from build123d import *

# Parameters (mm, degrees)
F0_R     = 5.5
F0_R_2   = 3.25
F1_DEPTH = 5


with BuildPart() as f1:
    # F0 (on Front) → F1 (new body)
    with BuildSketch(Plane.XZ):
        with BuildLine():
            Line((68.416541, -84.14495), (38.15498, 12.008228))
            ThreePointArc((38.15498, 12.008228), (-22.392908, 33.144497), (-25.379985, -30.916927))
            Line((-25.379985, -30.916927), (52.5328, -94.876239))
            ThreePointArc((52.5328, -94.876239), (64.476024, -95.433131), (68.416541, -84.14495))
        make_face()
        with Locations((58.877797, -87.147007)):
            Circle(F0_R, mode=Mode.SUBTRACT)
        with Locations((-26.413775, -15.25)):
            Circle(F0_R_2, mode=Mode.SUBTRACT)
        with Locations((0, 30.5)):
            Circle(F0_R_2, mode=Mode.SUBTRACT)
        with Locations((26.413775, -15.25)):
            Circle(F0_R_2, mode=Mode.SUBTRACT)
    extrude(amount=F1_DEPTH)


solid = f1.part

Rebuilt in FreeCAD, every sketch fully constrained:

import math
import FreeCAD as App
import Part
import Sketcher

V = App.Vector
Q = App.Units.Quantity

doc = App.newDocument("Part")
body = doc.addObject("PartDesign::Body", "Body")

sketch1 = doc.addObject("Sketcher::SketchObject", "Sketch")
body.addObject(sketch1)
sketch1.AttachmentSupport = (doc.XZ_Plane, [""])
sketch1.MapMode = "FlatFace"
sketch1.addGeometry([
    Part.LineSegment(V(68.4, -84.1, 0), V(38.2, 12, 0)),
    Part.ArcOfCircle(Part.Circle(V(0, 0, 0), V(0, 0, 1), 40), math.radians(17), math.radians(231)),
    Part.LineSegment(V(-25.4, -30.9, 0), V(52.5, -94.9, 0)),
    Part.ArcOfCircle(Part.Circle(V(58.9, -87.1, 0), V(0, 0, 1), 10), math.radians(-129), math.radians(17)),
    Part.Circle(V(58.9, -87.1, 0), V(0, 0, 1), 5.5),
    Part.Circle(V(-26.4, -15.2, 0), V(0, 0, 1), 3.2),
    Part.Circle(V(0, 30.5, 0), V(0, 0, 1), 3.2),
    Part.Circle(V(26.4, -15.2, 0), V(0, 0, 1), 3.2),
], False)
sketch1.addConstraint([
    Sketcher.Constraint("Tangent", 0, 2, 1, 1),
    Sketcher.Constraint("Tangent", 1, 2, 2, 1),
    Sketcher.Constraint("Tangent", 2, 2, 3, 1),
    Sketcher.Constraint("Tangent", 3, 2, 0, 1),
    Sketcher.Constraint("Coincident", 1, 3, -1, 1),
    Sketcher.Constraint("Coincident", 4, 3, 3, 3),
    Sketcher.Constraint("Equal", 5, 6),
    Sketcher.Constraint("Equal", 6, 7),
    Sketcher.Constraint("Symmetric", 5, 3, 7, 3, -2),
    Sketcher.Constraint("PointOnObject", 6, 3, -2),
    Sketcher.Constraint("Diameter", 4, Q("11 mm")),
    Sketcher.Constraint("Radius", 1, Q("40 mm")),
    Sketcher.Constraint("Radius", 3, Q("10 mm")),
    Sketcher.Constraint("Diameter", 5, Q("6.5 mm")),
    Sketcher.Constraint("DistanceY", -1, 1, 6, 3, Q("30.5 mm")),
    Sketcher.Constraint("DistanceY", 5, 3, -1, 1, Q("15.25 mm")),
    Sketcher.Constraint("DistanceX", -1, 1, 2, 2, Q("52.5328 mm")),
    Sketcher.Constraint("DistanceX", -1, 1, 0, 2, Q("38.15498 mm")),
    Sketcher.Constraint("DistanceX", 5, 3, 3, 3, Q("85.291571 mm")),
])
pad1 = doc.addObject("PartDesign::Pad", "Pad")
body.addObject(pad1)
pad1.Profile = sketch1
pad1.Length = 5

doc.recompute()
